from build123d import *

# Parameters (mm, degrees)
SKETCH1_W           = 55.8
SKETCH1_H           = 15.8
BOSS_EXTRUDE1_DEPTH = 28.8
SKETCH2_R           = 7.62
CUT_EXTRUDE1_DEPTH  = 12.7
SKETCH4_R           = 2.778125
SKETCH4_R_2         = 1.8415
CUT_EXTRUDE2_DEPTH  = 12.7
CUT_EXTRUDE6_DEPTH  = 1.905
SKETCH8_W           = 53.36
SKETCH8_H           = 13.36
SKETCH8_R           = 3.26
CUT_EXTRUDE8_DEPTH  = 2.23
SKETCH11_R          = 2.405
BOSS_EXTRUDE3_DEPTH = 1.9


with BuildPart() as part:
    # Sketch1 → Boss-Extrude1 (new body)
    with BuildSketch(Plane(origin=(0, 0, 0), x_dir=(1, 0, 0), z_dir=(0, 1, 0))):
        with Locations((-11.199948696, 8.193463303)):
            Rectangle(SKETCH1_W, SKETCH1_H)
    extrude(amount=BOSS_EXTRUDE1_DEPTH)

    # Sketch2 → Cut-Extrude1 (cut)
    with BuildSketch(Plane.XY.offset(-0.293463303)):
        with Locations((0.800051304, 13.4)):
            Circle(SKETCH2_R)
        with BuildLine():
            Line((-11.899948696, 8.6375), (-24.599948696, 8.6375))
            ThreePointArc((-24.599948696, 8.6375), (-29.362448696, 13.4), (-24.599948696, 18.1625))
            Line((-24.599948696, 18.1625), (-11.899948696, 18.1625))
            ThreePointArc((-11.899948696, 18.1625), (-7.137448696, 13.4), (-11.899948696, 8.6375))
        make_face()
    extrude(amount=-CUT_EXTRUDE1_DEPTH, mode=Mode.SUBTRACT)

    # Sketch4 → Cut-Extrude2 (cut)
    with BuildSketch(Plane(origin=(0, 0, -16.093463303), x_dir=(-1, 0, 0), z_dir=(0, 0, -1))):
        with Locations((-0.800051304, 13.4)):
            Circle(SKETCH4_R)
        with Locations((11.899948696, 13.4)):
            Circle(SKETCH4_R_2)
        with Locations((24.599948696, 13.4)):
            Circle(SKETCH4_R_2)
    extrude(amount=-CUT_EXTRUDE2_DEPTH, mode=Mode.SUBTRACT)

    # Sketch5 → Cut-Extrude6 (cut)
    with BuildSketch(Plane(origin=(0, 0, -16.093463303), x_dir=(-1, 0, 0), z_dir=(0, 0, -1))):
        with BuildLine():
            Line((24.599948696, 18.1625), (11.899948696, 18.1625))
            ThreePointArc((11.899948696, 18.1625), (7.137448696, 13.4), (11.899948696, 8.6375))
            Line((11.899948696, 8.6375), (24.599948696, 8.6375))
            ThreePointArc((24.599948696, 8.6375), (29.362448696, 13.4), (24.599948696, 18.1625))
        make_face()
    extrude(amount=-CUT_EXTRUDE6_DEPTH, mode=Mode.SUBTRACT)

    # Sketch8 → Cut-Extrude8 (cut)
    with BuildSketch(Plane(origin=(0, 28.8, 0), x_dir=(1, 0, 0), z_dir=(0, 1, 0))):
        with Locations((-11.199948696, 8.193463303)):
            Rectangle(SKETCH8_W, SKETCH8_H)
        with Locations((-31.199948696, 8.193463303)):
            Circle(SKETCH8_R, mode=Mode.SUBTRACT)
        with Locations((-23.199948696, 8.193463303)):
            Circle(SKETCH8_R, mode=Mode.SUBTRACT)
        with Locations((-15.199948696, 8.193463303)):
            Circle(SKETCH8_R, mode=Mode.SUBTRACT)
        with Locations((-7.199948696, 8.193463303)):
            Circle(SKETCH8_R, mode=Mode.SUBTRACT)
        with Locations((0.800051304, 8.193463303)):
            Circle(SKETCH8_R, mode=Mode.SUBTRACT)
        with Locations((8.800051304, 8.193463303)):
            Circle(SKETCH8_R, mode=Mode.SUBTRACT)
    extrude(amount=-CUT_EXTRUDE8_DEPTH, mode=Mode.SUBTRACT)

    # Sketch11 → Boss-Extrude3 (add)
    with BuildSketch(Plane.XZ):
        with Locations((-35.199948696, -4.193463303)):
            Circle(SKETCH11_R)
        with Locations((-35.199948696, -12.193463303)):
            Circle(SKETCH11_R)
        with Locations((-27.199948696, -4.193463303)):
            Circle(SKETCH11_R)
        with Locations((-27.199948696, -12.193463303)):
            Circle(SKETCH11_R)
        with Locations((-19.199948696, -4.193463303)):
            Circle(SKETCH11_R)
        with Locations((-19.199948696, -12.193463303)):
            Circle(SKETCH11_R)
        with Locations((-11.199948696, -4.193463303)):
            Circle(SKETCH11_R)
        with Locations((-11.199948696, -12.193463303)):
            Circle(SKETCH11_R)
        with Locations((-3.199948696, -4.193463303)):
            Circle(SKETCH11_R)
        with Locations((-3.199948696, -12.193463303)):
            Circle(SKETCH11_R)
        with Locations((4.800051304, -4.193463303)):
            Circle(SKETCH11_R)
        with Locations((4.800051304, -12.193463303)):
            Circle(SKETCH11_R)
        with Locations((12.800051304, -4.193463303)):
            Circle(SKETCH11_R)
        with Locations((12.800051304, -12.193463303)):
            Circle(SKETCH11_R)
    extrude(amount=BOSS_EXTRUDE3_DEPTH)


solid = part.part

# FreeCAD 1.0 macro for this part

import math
import FreeCAD as App
import Part
import Sketcher

V = App.Vector
Q = App.Units.Quantity

doc = App.newDocument("Part")
body = doc.addObject("PartDesign::Body", "Body")

# Sketch on XZ plane
sketch1 = doc.addObject("Sketcher::SketchObject", "Sketch")
body.addObject(sketch1)
sketch1.AttachmentSupport = (doc.XZ_Plane, [""])
sketch1.MapMode = "FlatFace"
sketch1.addGeometry([
    Part.LineSegment(V(-39.099949, -16.093463, 0), V(-39.099949, -0.293463, 0)),
    Part.LineSegment(V(-39.099949, -0.293463, 0), V(16.700051, -0.293463, 0)),
    Part.LineSegment(V(16.700051, -0.293463, 0), V(16.700051, -16.093463, 0)),
    Part.LineSegment(V(16.700051, -16.093463, 0), V(-39.099949, -16.093463, 0)),
], False)
sketch1.addConstraint([
    Sketcher.Constraint("Coincident", 0, 2, 1, 1),
    Sketcher.Constraint("Coincident", 1, 2, 2, 1),
    Sketcher.Constraint("Coincident", 2, 2, 3, 1),
    Sketcher.Constraint("Coincident", 3, 2, 0, 1),
    Sketcher.Constraint("Vertical", 0),
    Sketcher.Constraint("Horizontal", 1),
    Sketcher.Constraint("Vertical", 2),
    Sketcher.Constraint("Horizontal", 3),
    Sketcher.Constraint("DistanceX", 1, 1, 1, 2, Q("55.8 mm")),
    Sketcher.Constraint("DistanceY", 0, 1, 0, 2, Q("15.8 mm")),
    Sketcher.Constraint("DistanceX", 0, 2, -1, 1, Q("39.099949 mm")),
    Sketcher.Constraint("DistanceY", 0, 2, -1, 1, Q("0.293463 mm")),
])
pad1 = doc.addObject("PartDesign::Pad", "Pad")
body.addObject(pad1)
pad1.Profile = sketch1
pad1.Length = 28.8
pad1.Reversed = True

# Sketch on XY plane
sketch2 = doc.addObject("Sketcher::SketchObject", "Sketch001")
body.addObject(sketch2)
sketch2.AttachmentSupport = (doc.XY_Plane, [""])
sketch2.MapMode = "FlatFace"
sketch2.AttachmentOffset = App.Placement(V(0, 0, -0.293463), App.Rotation())
sketch2.addGeometry([
    Part.Circle(V(0.800051, 13.4, 0), V(0, 0, 1), 7.62),  # 0
    Part.LineSegment(V(-24.599949, 8.6375, 0), V(-11.899949, 8.6375, 0)),  # 1
    Part.ArcOfCircle(Part.Circle(V(-11.899949, 13.4, 0), V(0, 0, 1), 4.7625), math.radians(-90), math.radians(90)),  # 2
    Part.LineSegment(V(-11.899949, 18.1625, 0), V(-24.599949, 18.1625, 0)),  # 3
    Part.ArcOfCircle(Part.Circle(V(-24.599949, 13.4, 0), V(0, 0, 1), 4.7625), math.radians(90), math.radians(270)),  # 4
], False)
sketch2.addConstraint([
    Sketcher.Constraint("Tangent", 1, 2, 2, 1),
    Sketcher.Constraint("Tangent", 2, 2, 3, 1),
    Sketcher.Constraint("Tangent", 3, 2, 4, 1),
    Sketcher.Constraint("Tangent", 4, 2, 1, 1),
    Sketcher.Constraint("Horizontal", 1),
    Sketcher.Constraint("Horizontal", 3),
    Sketcher.Constraint("Horizontal", 0, 3, 2, 3),
    Sketcher.Constraint("Diameter", 0, Q("0.6 in")),
    Sketcher.Constraint("DistanceX", 1, 1, 1, 2, Q("0.5 in")),
    Sketcher.Constraint("Radius", 2, Q("0.1875 in")),
    Sketcher.Constraint("DistanceX", 4, 3, 0, 3, Q("1 in")),
    Sketcher.Constraint("DistanceY", -1, 1, 0, 3, Q("13.4 mm")),
    Sketcher.Constraint("DistanceX", -1, 1, 0, 3, Q("0.800051 mm")),
])
pocket1 = doc.addObject("PartDesign::Pocket", "Pocket")
body.addObject(pocket1)
pocket1.Profile = sketch2
pocket1.Length = Q("0.5 in")

# Sketch on XY plane
sketch3 = doc.addObject("Sketcher::SketchObject", "Sketch002")
body.addObject(sketch3)
sketch3.AttachmentSupport = (doc.XY_Plane, [""])
sketch3.MapMode = "FlatFace"
sketch3.AttachmentOffset = App.Placement(V(0, 0, -16.093463), App.Rotation())
sketch3.addGeometry([
    Part.Circle(V(0.800051, 13.4, 0), V(0, 0, 1), 2.778125),
    Part.Circle(V(-11.899949, 13.4, 0), V(0, 0, 1), 1.8415),
    Part.Circle(V(-24.599949, 13.4, 0), V(0, 0, 1), 1.8415),
], False)
sketch3.addConstraint([
    Sketcher.Constraint("Equal", 1, 2),
    Sketcher.Constraint("Horizontal", 0, 3, 1, 3),
    Sketcher.Constraint("Horizontal", 1, 3, 2, 3),
    Sketcher.Constraint("Diameter", 0, Q("0.21875 in")),
    Sketcher.Constraint("Diameter", 1, Q("0.145 in")),
    Sketcher.Constraint("DistanceX", 2, 3, 0, 3, Q("1 in")),
    Sketcher.Constraint("DistanceX", 1, 3, 0, 3, Q("0.5 in")),
    Sketcher.Constraint("DistanceY", -1, 1, 0, 3, Q("13.4 mm")),
    Sketcher.Constraint("DistanceX", -1, 1, 0, 3, Q("0.800051 mm")),
])
pocket2 = doc.addObject("PartDesign::Pocket", "Pocket001")
body.addObject(pocket2)
pocket2.Profile = sketch3
pocket2.Length = Q("0.5 in")
pocket2.Reversed = True

# Sketch on XY plane
sketch4 = doc.addObject("Sketcher::SketchObject", "Sketch003")
body.addObject(sketch4)
sketch4.AttachmentSupport = (doc.XY_Plane, [""])
sketch4.MapMode = "FlatFace"
sketch4.AttachmentOffset = App.Placement(V(0, 0, -16.093463), App.Rotation())
sketch4.addGeometry([
    Part.LineSegment(V(-24.599949, 18.1625, 0), V(-11.899949, 18.1625, 0)),
    Part.ArcOfCircle(Part.Circle(V(-11.899949, 13.4, 0), V(0, 0, 1), 4.7625), math.radians(-90), math.radians(90)),
    Part.LineSegment(V(-11.899949, 8.6375, 0), V(-24.599949, 8.6375, 0)),
    Part.ArcOfCircle(Part.Circle(V(-24.599949, 13.4, 0), V(0, 0, 1), 4.7625), math.radians(90), math.radians(270)),
], False)
sketch4.addConstraint([
    Sketcher.Constraint("Tangent", 0, 2, 1, 2),
    Sketcher.Constraint("Tangent", 1, 1, 2, 1),
    Sketcher.Constraint("Tangent", 2, 2, 3, 2),
    Sketcher.Constraint("Tangent", 3, 1, 0, 1),
    Sketcher.Constraint("Horizontal", 0),
    Sketcher.Constraint("Horizontal", 2),
    Sketcher.Constraint("DistanceX", 0, 1, 0, 2, Q("0.5 in")),
    Sketcher.Constraint("Radius", 1, Q("0.1875 in")),
    Sketcher.Constraint("DistanceY", -1, 1, 1, 3, Q("13.4 mm")),
    Sketcher.Constraint("DistanceX", 1, 3, -1, 1, Q("11.899949 mm")),
])
pocket3 = doc.addObject("PartDesign::Pocket", "Pocket002")
body.addObject(pocket3)
pocket3.Profile = sketch4
pocket3.Length = Q("0.075 in")
pocket3.Reversed = True

# Sketch on XZ plane
sketch5 = doc.addObject("Sketcher::SketchObject", "Sketch004")
body.addObject(sketch5)
sketch5.AttachmentSupport = (doc.XZ_Plane, [""])
sketch5.MapMode = "FlatFace"
sketch5.AttachmentOffset = App.Placement(V(0, 0, -28.8), App.Rotation())
sketch5.addGeometry([
    Part.LineSegment(V(-37.879949, -14.873463, 0), V(-37.879949, -1.513463, 0)),  # 0
    Part.LineSegment(V(-37.879949, -1.513463, 0), V(15.480051, -1.513463, 0)),  # 1
    Part.LineSegment(V(15.480051, -1.513463, 0), V(15.480051, -14.873463, 0)),  # 2
    Part.LineSegment(V(15.480051, -14.873463, 0), V(-37.879949, -14.873463, 0)),  # 3
    Part.Circle(V(-31.199949, -8.193463, 0), V(0, 0, 1), 3.26),  # 4
    Part.Circle(V(-23.199949, -8.193463, 0), V(0, 0, 1), 3.26),  # 5
    Part.Circle(V(-15.199949, -8.193463, 0), V(0, 0, 1), 3.26),  # 6
    Part.Circle(V(-7.199949, -8.193463, 0), V(0, 0, 1), 3.26),  # 7
    Part.Circle(V(0.800051, -8.193463, 0), V(0, 0, 1), 3.26),  # 8
    Part.Circle(V(8.800051, -8.193463, 0), V(0, 0, 1), 3.26),  # 9
], False)
sketch5.addConstraint([
    Sketcher.Constraint("Coincident", 0, 2, 1, 1),
    Sketcher.Constraint("Coincident", 1, 2, 2, 1),
    Sketcher.Constraint("Coincident", 2, 2, 3, 1),
    Sketcher.Constraint("Coincident", 3, 2, 0, 1),
    Sketcher.Constraint("Vertical", 0),
    Sketcher.Constraint("Horizontal", 1),
    Sketcher.Constraint("Vertical", 2),
    Sketcher.Constraint("Horizontal", 3),
    Sketcher.Constraint("Equal", 4, 5),
    Sketcher.Constraint("Equal", 5, 6),
    Sketcher.Constraint("Equal", 6, 7),
    Sketcher.Constraint("Equal", 7, 8),
    Sketcher.Constraint("Equal", 8, 9),
    Sketcher.Constraint("Horizontal", 4, 3, 5, 3),
    Sketcher.Constraint("Horizontal", 5, 3, 6, 3),
    Sketcher.Constraint("Horizontal", 6, 3, 7, 3),
    Sketcher.Constraint("Horizontal", 7, 3, 8, 3),
    Sketcher.Constraint("Horizontal", 8, 3, 9, 3),
    Sketcher.Constraint("Diameter", 4, Q("6.52 mm")),
    Sketcher.Constraint("DistanceX", 1, 1, 1, 2, Q("53.36 mm")),
    Sketcher.Constraint("DistanceY", 0, 1, 0, 2, Q("13.36 mm")),
    Sketcher.Constraint("DistanceX", 4, 3, 5, 3, Q("8 mm")),
    Sketcher.Constraint("DistanceX", 5, 3, 6, 3, Q("8 mm")),
    Sketcher.Constraint("DistanceX", 6, 3, 7, 3, Q("8 mm")),
    Sketcher.Constraint("DistanceX", 7, 3, 8, 3, Q("8 mm")),
    Sketcher.Constraint("DistanceX", 8, 3, 9, 3, Q("8 mm")),
    Sketcher.Constraint("DistanceX", 0, 2, 4, 3, Q("6.68 mm")),
    Sketcher.Constraint("DistanceY", 4, 3, 0, 2, Q("6.68 mm")),
    Sketcher.Constraint("DistanceX", 4, 3, -1, 1, Q("31.199949 mm")),
    Sketcher.Constraint("DistanceY", 4, 3, -1, 1, Q("8.193463 mm")),
])
pocket4 = doc.addObject("PartDesign::Pocket", "Pocket003")
body.addObject(pocket4)
pocket4.Profile = sketch5
pocket4.Length = 2.23
pocket4.Reversed = True

# Sketch on XZ plane
sketch6 = doc.addObject("Sketcher::SketchObject", "Sketch005")
body.addObject(sketch6)
sketch6.AttachmentSupport = (doc.XZ_Plane, [""])
sketch6.MapMode = "FlatFace"
sketch6.addGeometry([
    Part.Circle(V(-35.199949, -4.193463, 0), V(0, 0, 1), 2.405),  # 0
    Part.Circle(V(-35.199949, -12.193463, 0), V(0, 0, 1), 2.405),  # 1
    Part.Circle(V(-27.199949, -4.193463, 0), V(0, 0, 1), 2.405),  # 2
    Part.Circle(V(-27.199949, -12.193463, 0), V(0, 0, 1), 2.405),  # 3
    Part.Circle(V(-19.199949, -4.193463, 0), V(0, 0, 1), 2.405),  # 4
    Part.Circle(V(-19.199949, -12.193463, 0), V(0, 0, 1), 2.405),  # 5
    Part.Circle(V(-11.199949, -4.193463, 0), V(0, 0, 1), 2.405),  # 6
    Part.Circle(V(-11.199949, -12.193463, 0), V(0, 0, 1), 2.405),  # 7
    Part.Circle(V(-3.199949, -4.193463, 0), V(0, 0, 1), 2.405),  # 8
    Part.Circle(V(-3.199949, -12.193463, 0), V(0, 0, 1), 2.405),  # 9
    Part.Circle(V(4.800051, -4.193463, 0), V(0, 0, 1), 2.405),  # 10
    Part.Circle(V(4.800051, -12.193463, 0), V(0, 0, 1), 2.405),  # 11
    Part.Circle(V(12.800051, -4.193463, 0), V(0, 0, 1), 2.405),  # 12
    Part.Circle(V(12.800051, -12.193463, 0), V(0, 0, 1), 2.405),  # 13
], False)
sketch6.addConstraint([
    Sketcher.Constraint("Equal", 0, 1),
    Sketcher.Constraint("Equal", 1, 2),
    Sketcher.Constraint("Equal", 2, 3),
    Sketcher.Constraint("Equal", 3, 4),
    Sketcher.Constraint("Equal", 4, 5),
    Sketcher.Constraint("Equal", 5, 6),
    Sketcher.Constraint("Equal", 6, 7),
    Sketcher.Constraint("Equal", 7, 8),
    Sketcher.Constraint("Equal", 8, 9),
    Sketcher.Constraint("Equal", 9, 10),
    Sketcher.Constraint("Equal", 10, 11),
    Sketcher.Constraint("Equal", 11, 12),
    Sketcher.Constraint("Equal", 12, 13),
    Sketcher.Constraint("Horizontal", 0, 3, 2, 3),
    Sketcher.Constraint("Horizontal", 1, 3, 3, 3),
    Sketcher.Constraint("Horizontal", 2, 3, 4, 3),
    Sketcher.Constraint("Horizontal", 3, 3, 5, 3),
    Sketcher.Constraint("Horizontal", 4, 3, 6, 3),
    Sketcher.Constraint("Horizontal", 5, 3, 7, 3),
    Sketcher.Constraint("Horizontal", 6, 3, 8, 3),
    Sketcher.Constraint("Horizontal", 7, 3, 9, 3),
    Sketcher.Constraint("Horizontal", 8, 3, 10, 3),
    Sketcher.Constraint("Horizontal", 9, 3, 11, 3),
    Sketcher.Constraint("Horizontal", 10, 3, 12, 3),
    Sketcher.Constraint("Horizontal", 11, 3, 13, 3),
    Sketcher.Constraint("Vertical", 0, 3, 1, 3),
    Sketcher.Constraint("Vertical", 2, 3, 3, 3),
    Sketcher.Constraint("Vertical", 4, 3, 5, 3),
    Sketcher.Constraint("Vertical", 6, 3, 7, 3),
    Sketcher.Constraint("Vertical", 8, 3, 9, 3),
    Sketcher.Constraint("Vertical", 10, 3, 11, 3),
    Sketcher.Constraint("Vertical", 12, 3, 13, 3),
    Sketcher.Constraint("Diameter", 0, Q("4.81 mm")),
    Sketcher.Constraint("DistanceY", 1, 3, 0, 3, Q("8 mm")),
    Sketcher.Constraint("DistanceX", 0, 3, 2, 3, Q("8 mm")),
    Sketcher.Constraint("DistanceX", 2, 3, 4, 3, Q("8 mm")),
    Sketcher.Constraint("DistanceX", 4, 3, 6, 3, Q("8 mm")),
    Sketcher.Constraint("DistanceX", 6, 3, 8, 3, Q("8 mm")),
    Sketcher.Constraint("DistanceX", 8, 3, 10, 3, Q("8 mm")),
    Sketcher.Constraint("DistanceX", 10, 3, 12, 3, Q("8 mm")),
    Sketcher.Constraint("DistanceX", 0, 3, -1, 1, Q("35.199949 mm")),
    Sketcher.Constraint("DistanceY", 0, 3, -1, 1, Q("4.193463 mm")),
])
pad2 = doc.addObject("PartDesign::Pad", "Pad001")
body.addObject(pad2)
pad2.Profile = sketch6
pad2.Length = 1.9

doc.recompute()
